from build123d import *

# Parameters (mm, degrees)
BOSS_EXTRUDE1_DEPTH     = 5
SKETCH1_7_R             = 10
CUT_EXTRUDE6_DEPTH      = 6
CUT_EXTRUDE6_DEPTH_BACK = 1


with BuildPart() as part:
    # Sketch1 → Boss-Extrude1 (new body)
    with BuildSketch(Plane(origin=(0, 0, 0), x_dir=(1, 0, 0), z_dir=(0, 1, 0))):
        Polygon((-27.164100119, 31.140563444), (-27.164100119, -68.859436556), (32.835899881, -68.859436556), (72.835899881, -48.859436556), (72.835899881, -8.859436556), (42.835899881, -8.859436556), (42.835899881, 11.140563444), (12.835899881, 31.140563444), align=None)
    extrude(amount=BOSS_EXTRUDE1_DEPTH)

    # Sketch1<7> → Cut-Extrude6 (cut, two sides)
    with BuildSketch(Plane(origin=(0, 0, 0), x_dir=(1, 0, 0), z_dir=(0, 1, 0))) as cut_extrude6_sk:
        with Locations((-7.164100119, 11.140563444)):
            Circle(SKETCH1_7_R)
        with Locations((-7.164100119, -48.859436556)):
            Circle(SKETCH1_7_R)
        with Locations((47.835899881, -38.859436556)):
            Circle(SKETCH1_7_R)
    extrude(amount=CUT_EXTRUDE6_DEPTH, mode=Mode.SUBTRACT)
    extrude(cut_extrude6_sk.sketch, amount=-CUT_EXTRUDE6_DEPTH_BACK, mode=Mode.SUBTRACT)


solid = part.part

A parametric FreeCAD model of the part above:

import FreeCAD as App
import Part
import Sketcher
from FreeCAD import Vector
Q = App.Units.Quantity


def add_polygon(sketch, points):
    """Adds a closed chain of lines whose ends are joined by coincident constraints."""
    first, n = sketch.GeometryCount, len(points)
    for a, b in zip(points, points[1:] + points[:1]):
        sketch.addGeometry(Part.LineSegment(App.Vector(*a, 0), App.Vector(*b, 0)), False)
    for i in range(n):
        sketch.addConstraint(Sketcher.Constraint("Coincident", first + i, 2, first + (i + 1) % n, 1))

doc = App.newDocument("Part")
body = doc.addObject("PartDesign::Body", "Body")

# Sketch on XZ plane
sketch1 = doc.addObject("Sketcher::SketchObject", "Sketch")
body.addObject(sketch1)
sketch1.AttachmentSupport = (doc.XZ_Plane, [""])
sketch1.MapMode = "FlatFace"
add_polygon(sketch1, [(-27, -31), (-27, 69), (33, 69), (73, 49), (73, 9), (43, 9), (43, -11), (13, -31)])  # lines 0-7
sketch1.addConstraint([
    Sketcher.Constraint("Vertical", 0),
    Sketcher.Constraint("Horizontal", 1),
    Sketcher.Constraint("Vertical", 3),
    Sketcher.Constraint("Horizontal", 4),
    Sketcher.Constraint("Vertical", 5),
    Sketcher.Constraint("Horizontal", 7),
    Sketcher.Constraint("Equal", 7, 3),
    Sketcher.Constraint("DistanceX", 1, 1, 1, 2, Q("60 mm")),
    Sketcher.Constraint("DistanceX", 4, 2, 4, 1, Q("30 mm")),
    Sketcher.Constraint("DistanceX", 7, 2, 7, 1, Q("40 mm")),
    Sketcher.Constraint("DistanceY", 0, 1, 0, 2, Q("100 mm")),
    Sketcher.Constraint("DistanceY", 5, 2, 5, 1, Q("20 mm")),
    Sketcher.Constraint("DistanceX", 1, 2, 2, 2, Q("40 mm")),
    Sketcher.Constraint("DistanceY", 2, 2, 1, 2, Q("20 mm")),
    Sketcher.Constraint("DistanceX", 0, 2, -1, 1, Q("27.1641 mm")),
    Sketcher.Constraint("DistanceY", -1, 1, 0, 2, Q("68.859437 mm")),
])
pad1 = doc.addObject("PartDesign::Pad", "Pad")
body.addObject(pad1)
pad1.Profile = sketch1
pad1.Length = 5
pad1.Reversed = True

# Sketch on XZ plane
sketch2 = doc.addObject("Sketcher::SketchObject", "Sketch001")
body.addObject(sketch2)
sketch2.AttachmentSupport = (doc.XZ_Plane, [""])
sketch2.MapMode = "FlatFace"
sketch2.addGeometry([
    Part.Circle(Vector(-7, -11, 0), Vector(0, 0, 1), 10),
    Part.Circle(Vector(-7, 49, 0), Vector(0, 0, 1), 10),
    Part.Circle(Vector(48, 39, 0), Vector(0, 0, 1), 10),
], False)
sketch2.addConstraint([
    Sketcher.Constraint("Equal", 0, 1),
    Sketcher.Constraint("Equal", 1, 2),
    Sketcher.Constraint("Vertical", 0, 3, 1, 3),
    Sketcher.Constraint("Diameter", 0, Q("20 mm")),
    Sketcher.Constraint("DistanceY", 0, 3, 1, 3, Q("60 mm")),
    Sketcher.Constraint("DistanceX", 1, 3, 2, 3, Q("55 mm")),
    Sketcher.Constraint("DistanceY", 2, 3, 1, 3, Q("10 mm")),
    Sketcher.Constraint("DistanceX", 0, 3, -1, 1, Q("7.1641 mm")),
    Sketcher.Constraint("DistanceY", 0, 3, -1, 1, Q("11.140563 mm")),
])
pocket1 = doc.addObject("PartDesign::Pocket", "Pocket")
body.addObject(pocket1)
pocket1.Profile = sketch2
pocket1.Type = "ThroughAll"
pocket1.Midplane = True

doc.recompute()
